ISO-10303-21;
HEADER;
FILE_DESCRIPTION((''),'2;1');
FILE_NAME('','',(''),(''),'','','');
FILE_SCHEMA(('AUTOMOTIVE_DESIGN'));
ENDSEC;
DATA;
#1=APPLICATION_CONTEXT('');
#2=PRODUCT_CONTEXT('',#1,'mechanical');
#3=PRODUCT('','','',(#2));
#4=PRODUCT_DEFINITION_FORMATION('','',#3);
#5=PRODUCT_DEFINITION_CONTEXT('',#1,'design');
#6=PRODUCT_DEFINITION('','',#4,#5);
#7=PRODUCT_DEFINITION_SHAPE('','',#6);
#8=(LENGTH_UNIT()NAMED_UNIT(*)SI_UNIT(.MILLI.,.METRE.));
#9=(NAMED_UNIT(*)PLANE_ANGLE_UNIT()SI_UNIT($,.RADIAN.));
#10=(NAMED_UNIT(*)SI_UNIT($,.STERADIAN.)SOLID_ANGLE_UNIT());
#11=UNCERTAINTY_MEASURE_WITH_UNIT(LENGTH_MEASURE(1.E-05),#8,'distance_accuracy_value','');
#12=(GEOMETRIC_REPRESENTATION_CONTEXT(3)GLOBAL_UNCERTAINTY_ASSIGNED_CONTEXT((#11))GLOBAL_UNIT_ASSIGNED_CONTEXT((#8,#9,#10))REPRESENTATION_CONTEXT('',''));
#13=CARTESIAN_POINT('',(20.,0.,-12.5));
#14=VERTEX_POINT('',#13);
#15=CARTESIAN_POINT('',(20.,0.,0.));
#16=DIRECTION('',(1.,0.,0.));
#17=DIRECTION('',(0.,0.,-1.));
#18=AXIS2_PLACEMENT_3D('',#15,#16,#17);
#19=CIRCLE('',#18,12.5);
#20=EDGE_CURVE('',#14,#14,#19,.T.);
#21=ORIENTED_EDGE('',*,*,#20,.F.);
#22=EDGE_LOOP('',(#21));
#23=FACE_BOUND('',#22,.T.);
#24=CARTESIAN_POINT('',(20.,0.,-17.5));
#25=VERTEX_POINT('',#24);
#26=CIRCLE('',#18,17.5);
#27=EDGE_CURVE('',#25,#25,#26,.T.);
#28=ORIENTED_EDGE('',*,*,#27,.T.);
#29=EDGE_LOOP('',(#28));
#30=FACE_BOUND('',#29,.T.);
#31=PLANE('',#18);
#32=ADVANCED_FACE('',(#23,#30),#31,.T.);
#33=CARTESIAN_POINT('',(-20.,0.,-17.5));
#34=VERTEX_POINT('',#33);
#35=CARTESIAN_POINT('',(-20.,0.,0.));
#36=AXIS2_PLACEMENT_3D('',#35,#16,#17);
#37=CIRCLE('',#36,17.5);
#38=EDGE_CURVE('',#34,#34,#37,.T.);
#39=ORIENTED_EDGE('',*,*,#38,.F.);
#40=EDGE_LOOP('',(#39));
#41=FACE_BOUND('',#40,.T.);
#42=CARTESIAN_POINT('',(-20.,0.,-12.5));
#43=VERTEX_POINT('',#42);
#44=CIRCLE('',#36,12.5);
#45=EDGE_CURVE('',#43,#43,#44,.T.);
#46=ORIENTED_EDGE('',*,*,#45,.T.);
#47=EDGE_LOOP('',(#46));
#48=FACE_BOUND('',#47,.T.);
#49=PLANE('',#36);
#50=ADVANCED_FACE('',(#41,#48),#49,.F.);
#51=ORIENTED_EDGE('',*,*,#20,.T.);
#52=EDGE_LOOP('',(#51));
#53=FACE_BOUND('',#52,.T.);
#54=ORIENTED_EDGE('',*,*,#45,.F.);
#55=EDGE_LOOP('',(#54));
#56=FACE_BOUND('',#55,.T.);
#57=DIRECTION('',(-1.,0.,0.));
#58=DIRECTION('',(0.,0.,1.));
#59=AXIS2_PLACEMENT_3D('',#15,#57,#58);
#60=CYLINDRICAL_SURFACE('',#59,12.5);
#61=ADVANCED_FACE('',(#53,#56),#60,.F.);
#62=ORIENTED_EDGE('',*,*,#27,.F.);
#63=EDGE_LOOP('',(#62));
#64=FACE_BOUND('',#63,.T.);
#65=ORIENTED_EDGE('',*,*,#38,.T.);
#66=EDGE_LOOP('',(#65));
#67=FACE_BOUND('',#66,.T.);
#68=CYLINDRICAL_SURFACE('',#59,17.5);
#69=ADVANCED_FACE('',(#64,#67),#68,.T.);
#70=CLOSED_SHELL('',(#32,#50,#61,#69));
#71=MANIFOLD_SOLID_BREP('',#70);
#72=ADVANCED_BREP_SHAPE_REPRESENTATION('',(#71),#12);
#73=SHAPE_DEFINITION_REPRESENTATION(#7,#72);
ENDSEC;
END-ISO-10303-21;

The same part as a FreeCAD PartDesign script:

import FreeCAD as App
import Part
import Sketcher

doc = App.newDocument("Part")
body = doc.addObject("PartDesign::Body", "Body")

# Sketch on YZ plane
sketch1 = body.newObject("Sketcher::SketchObject", "Sketch")
sketch1.AttachmentSupport = (doc.getObject("YZ_Plane"), [""])
sketch1.MapMode = "FlatFace"
sketch1.addGeometry(Part.Circle(App.Vector(0, 0, 0), App.Vector(0, 0, 1), 18), False)
sketch1.addGeometry(Part.Circle(App.Vector(0, 0, 0), App.Vector(0, 0, 1), 12), False)
sketch1.addConstraint(Sketcher.Constraint("Coincident", 0, 3, -1, 1))
sketch1.addConstraint(Sketcher.Constraint("Coincident", 1, 3, -1, 1))
sketch1.addConstraint(Sketcher.Constraint("Diameter", 0, 35.0))
sketch1.addConstraint(Sketcher.Constraint("Diameter", 1, 25.0))
pad1 = body.newObject("PartDesign::Pad", "Pad")
pad1.Profile = sketch1
pad1.Length = 40
pad1.Midplane = True

doc.recompute()
